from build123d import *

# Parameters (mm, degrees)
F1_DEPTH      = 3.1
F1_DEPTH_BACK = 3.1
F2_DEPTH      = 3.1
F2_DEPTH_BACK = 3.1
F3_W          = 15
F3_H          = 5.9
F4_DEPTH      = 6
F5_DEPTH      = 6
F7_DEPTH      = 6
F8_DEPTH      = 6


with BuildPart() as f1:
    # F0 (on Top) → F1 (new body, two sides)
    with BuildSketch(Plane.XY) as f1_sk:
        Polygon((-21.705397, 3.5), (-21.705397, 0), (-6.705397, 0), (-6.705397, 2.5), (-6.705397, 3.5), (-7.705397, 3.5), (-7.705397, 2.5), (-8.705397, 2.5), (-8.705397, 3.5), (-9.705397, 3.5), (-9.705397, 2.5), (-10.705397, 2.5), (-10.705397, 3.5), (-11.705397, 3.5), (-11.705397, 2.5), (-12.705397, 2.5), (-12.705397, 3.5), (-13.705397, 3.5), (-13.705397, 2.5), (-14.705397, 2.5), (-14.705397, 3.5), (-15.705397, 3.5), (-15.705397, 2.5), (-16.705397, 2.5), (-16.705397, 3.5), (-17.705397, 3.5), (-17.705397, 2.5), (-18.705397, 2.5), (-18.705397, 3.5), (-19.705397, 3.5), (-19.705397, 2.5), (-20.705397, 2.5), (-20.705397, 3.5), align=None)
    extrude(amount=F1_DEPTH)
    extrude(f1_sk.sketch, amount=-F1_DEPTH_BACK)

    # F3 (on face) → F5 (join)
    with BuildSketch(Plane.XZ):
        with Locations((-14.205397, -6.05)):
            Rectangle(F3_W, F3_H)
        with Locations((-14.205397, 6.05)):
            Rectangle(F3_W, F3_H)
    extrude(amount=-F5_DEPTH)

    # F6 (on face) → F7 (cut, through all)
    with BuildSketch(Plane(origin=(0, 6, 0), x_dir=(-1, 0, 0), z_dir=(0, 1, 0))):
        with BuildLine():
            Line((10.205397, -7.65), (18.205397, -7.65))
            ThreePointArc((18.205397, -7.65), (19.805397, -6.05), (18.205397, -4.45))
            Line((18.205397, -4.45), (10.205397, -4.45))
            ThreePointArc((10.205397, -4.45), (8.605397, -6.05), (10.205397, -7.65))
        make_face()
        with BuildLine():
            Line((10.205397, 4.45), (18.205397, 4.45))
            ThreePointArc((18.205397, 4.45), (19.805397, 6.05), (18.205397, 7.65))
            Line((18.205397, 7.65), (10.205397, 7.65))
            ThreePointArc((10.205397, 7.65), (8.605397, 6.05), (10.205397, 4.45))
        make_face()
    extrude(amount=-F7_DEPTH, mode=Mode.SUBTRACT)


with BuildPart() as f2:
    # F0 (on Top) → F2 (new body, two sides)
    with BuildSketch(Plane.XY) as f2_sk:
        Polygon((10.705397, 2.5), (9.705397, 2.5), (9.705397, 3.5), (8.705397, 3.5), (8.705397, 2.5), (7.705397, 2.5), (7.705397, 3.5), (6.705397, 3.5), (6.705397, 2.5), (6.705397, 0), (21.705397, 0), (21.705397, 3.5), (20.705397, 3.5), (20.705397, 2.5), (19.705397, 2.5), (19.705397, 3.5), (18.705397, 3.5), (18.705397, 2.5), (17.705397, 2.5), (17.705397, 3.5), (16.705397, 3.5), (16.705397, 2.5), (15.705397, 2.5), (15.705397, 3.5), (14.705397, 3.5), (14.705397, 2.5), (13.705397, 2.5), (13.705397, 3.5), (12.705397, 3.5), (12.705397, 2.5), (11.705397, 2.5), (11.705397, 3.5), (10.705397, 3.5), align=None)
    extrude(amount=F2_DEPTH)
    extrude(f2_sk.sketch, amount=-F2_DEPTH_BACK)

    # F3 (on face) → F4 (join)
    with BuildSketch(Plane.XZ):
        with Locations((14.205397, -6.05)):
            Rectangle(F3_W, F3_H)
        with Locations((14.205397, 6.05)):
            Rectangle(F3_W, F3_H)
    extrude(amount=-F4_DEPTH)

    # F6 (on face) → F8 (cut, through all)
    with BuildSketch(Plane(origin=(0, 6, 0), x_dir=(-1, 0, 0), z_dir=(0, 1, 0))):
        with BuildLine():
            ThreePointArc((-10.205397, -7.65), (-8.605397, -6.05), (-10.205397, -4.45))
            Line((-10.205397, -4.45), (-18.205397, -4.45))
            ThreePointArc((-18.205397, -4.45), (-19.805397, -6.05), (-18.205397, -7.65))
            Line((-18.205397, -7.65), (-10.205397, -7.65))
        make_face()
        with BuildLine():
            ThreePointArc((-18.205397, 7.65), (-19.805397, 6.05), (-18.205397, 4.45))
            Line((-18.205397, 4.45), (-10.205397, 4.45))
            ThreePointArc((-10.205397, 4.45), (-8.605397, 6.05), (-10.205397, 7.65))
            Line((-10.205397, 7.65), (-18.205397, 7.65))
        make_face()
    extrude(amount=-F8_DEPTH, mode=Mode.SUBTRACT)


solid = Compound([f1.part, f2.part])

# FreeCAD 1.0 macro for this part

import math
import FreeCAD as App
import Part
import Sketcher

V = App.Vector


def add_polygon(sketch, points):
    """Adds a closed chain of lines whose ends are joined by coincident constraints."""
    first, n = sketch.GeometryCount, len(points)
    for a, b in zip(points, points[1:] + points[:1]):
        sketch.addGeometry(Part.LineSegment(App.Vector(*a, 0), App.Vector(*b, 0)), False)
    for i in range(n):
        sketch.addConstraint(Sketcher.Constraint("Coincident", first + i, 2, first + (i + 1) % n, 1))

doc = App.newDocument("Part")
body = doc.addObject("PartDesign::Body", "Body")

# Sketch on XY plane
sketch1 = body.newObject("Sketcher::SketchObject", "Sketch")
sketch1.AttachmentSupport = (doc.getObject("XY_Plane"), [""])
sketch1.MapMode = "FlatFace"
add_polygon(sketch1, [(-21.7, 3.5), (-21.7, 0), (-6.7, 0), (-6.7, 3.5), (-7.7, 3.5), (-7.7, 2.5), (-8.7, 2.5), (-8.7, 3.5), (-9.7, 3.5), (-9.7, 2.5), (-10.7, 2.5), (-10.7, 3.5), (-11.7, 3.5), (-11.7, 2.5), (-12.7, 2.5), (-12.7, 3.5), (-13.7, 3.5), (-13.7, 2.5), (-14.7, 2.5), (-14.7, 3.5), (-15.7, 3.5), (-15.7, 2.5), (-16.7, 2.5), (-16.7, 3.5), (-17.7, 3.5), (-17.7, 2.5), (-18.7, 2.5), (-18.7, 3.5), (-19.7, 3.5), (-19.7, 2.5), (-20.7, 2.5), (-20.7, 3.5)])  # lines 0-31
sketch1.addConstraint([
    Sketcher.Constraint("Vertical", 0),
    Sketcher.Constraint("Horizontal", 1),
    Sketcher.Constraint("Vertical", 2),
    Sketcher.Constraint("Horizontal", 3),
    Sketcher.Constraint("Vertical", 4),
    Sketcher.Constraint("Horizontal", 5),
    Sketcher.Constraint("Vertical", 6),
    Sketcher.Constraint("Horizontal", 7),
    Sketcher.Constraint("Vertical", 8),
    Sketcher.Constraint("Horizontal", 9),
    Sketcher.Constraint("Vertical", 10),
    Sketcher.Constraint("Horizontal", 11),
    Sketcher.Constraint("Vertical", 12),
    Sketcher.Constraint("Horizontal", 13),
    Sketcher.Constraint("Vertical", 14),
    Sketcher.Constraint("Horizontal", 15),
    Sketcher.Constraint("Vertical", 16),
    Sketcher.Constraint("Horizontal", 17),
    Sketcher.Constraint("Vertical", 18),
    Sketcher.Constraint("Horizontal", 19),
    Sketcher.Constraint("Vertical", 20),
    Sketcher.Constraint("Horizontal", 21),
    Sketcher.Constraint("Vertical", 22),
    Sketcher.Constraint("Horizontal", 23),
    Sketcher.Constraint("Vertical", 24),
    Sketcher.Constraint("Horizontal", 25),
    Sketcher.Constraint("Vertical", 26),
    Sketcher.Constraint("Horizontal", 27),
    Sketcher.Constraint("Vertical", 28),
    Sketcher.Constraint("Horizontal", 29),
    Sketcher.Constraint("Vertical", 30),
    Sketcher.Constraint("Horizontal", 31),
    Sketcher.Constraint("PointOnObject", 0, 2, -1),
    Sketcher.Constraint("Horizontal", 3, 2, 6, 2),
    Sketcher.Constraint("Horizontal", 5, 2, 8, 2),
    Sketcher.Constraint("Horizontal", 7, 2, 10, 2),
    Sketcher.Constraint("Horizontal", 9, 2, 12, 2),
    Sketcher.Constraint("Horizontal", 11, 2, 14, 2),
    Sketcher.Constraint("Horizontal", 13, 2, 16, 2),
    Sketcher.Constraint("Horizontal", 15, 2, 18, 2),
    Sketcher.Constraint("Horizontal", 17, 2, 20, 2),
    Sketcher.Constraint("Horizontal", 19, 2, 22, 2),
    Sketcher.Constraint("Horizontal", 21, 2, 24, 2),
    Sketcher.Constraint("Horizontal", 23, 2, 26, 2),
    Sketcher.Constraint("Horizontal", 25, 2, 28, 2),
    Sketcher.Constraint("Horizontal", 27, 2, 30, 2),
    Sketcher.Constraint("Equal", 3, 5),
    Sketcher.Constraint("Equal", 5, 7),
    Sketcher.Constraint("Equal", 7, 9),
    Sketcher.Constraint("Equal", 9, 11),
    Sketcher.Constraint("Equal", 11, 13),
    Sketcher.Constraint("Equal", 13, 15),
    Sketcher.Constraint("Equal", 15, 17),
    Sketcher.Constraint("Equal", 17, 19),
    Sketcher.Constraint("Equal", 19, 21),
    Sketcher.Constraint("Equal", 21, 23),
    Sketcher.Constraint("Equal", 23, 25),
    Sketcher.Constraint("Equal", 25, 27),
    Sketcher.Constraint("Equal", 27, 29),
    Sketcher.Constraint("Equal", 29, 31),
    Sketcher.Constraint("Equal", 31, 4),
    Sketcher.Constraint("DistanceX", 1, 1, 1, 2, 15.0),
    Sketcher.Constraint("DistanceY", 0, 2, 0, 1, 3.5),
    Sketcher.Constraint("DistanceX", 0, 2, -1, 1, 21.705397),
])
pad1 = body.newObject("PartDesign::Pad", "Pad")
pad1.Profile = sketch1
pad1.Type = "TwoLengths"
pad1.Length = 3.1
pad1.Length2 = 3.1

# Sketch on XZ plane
sketch2 = body.newObject("Sketcher::SketchObject", "Sketch001")
sketch2.AttachmentSupport = (doc.getObject("XZ_Plane"), [""])
sketch2.MapMode = "FlatFace"
add_polygon(sketch2, [(-22, -3), (-22, -9), (-7, -9), (-7, -3)])  # lines 0-3
add_polygon(sketch2, [(-22, 9), (-22, 3), (-7, 3), (-7, 9)])  # lines 4-7
sketch2.addConstraint([
    Sketcher.Constraint("Vertical", 0),
    Sketcher.Constraint("Horizontal", 1),
    Sketcher.Constraint("Vertical", 2),
    Sketcher.Constraint("Horizontal", 3),
    Sketcher.Constraint("Vertical", 4),
    Sketcher.Constraint("Horizontal", 5),
    Sketcher.Constraint("Vertical", 6),
    Sketcher.Constraint("Horizontal", 7),
    Sketcher.Constraint("Symmetric", 3, 2, 4, 2, -1),
    Sketcher.Constraint("Symmetric", 1, 2, 6, 2, -1),
    Sketcher.Constraint("DistanceX", 1, 1, 1, 2, 15.0),
    Sketcher.Constraint("DistanceY", 0, 2, 0, 1, 5.9),
    Sketcher.Constraint("DistanceY", 0, 2, -1, 1, 9.0),
    Sketcher.Constraint("DistanceX", 0, 2, -1, 1, 21.705397),
])
pad2 = body.newObject("PartDesign::Pad", "Pad001")
pad2.Profile = sketch2
pad2.Length = 6
pad2.Reversed = True

# Sketch on XZ plane
sketch3 = body.newObject("Sketcher::SketchObject", "Sketch002")
sketch3.AttachmentSupport = (doc.getObject("XZ_Plane"), [""])
sketch3.MapMode = "FlatFace"
sketch3.AttachmentOffset = App.Placement(V(0, 0, -6), App.Rotation())
sketch3.addGeometry([
    Part.LineSegment(V(-10.2, -7.7, 0), V(-18.2, -7.7, 0)),  # 0
    Part.ArcOfCircle(Part.Circle(V(-18.2, -6, 0), V(0, 0, 1), 1.6), math.radians(90), math.radians(270)),  # 1
    Part.LineSegment(V(-18.2, -4.5, 0), V(-10.2, -4.5, 0)),  # 2
    Part.ArcOfCircle(Part.Circle(V(-10.2, -6, 0), V(0, 0, 1), 1.6), math.radians(-90), math.radians(90)),  # 3
    Part.LineSegment(V(-10.2, 4.5, 0), V(-18.2, 4.5, 0)),  # 4
    Part.ArcOfCircle(Part.Circle(V(-18.2, 6, 0), V(0, 0, 1), 1.6), math.radians(90), math.radians(270)),  # 5
    Part.LineSegment(V(-18.2, 7.7, 0), V(-10.2, 7.7, 0)),  # 6
    Part.ArcOfCircle(Part.Circle(V(-10.2, 6, 0), V(0, 0, 1), 1.6), math.radians(-90), math.radians(90)),  # 7
], False)
sketch3.addConstraint([
    Sketcher.Constraint("Tangent", 0, 2, 1, 2),
    Sketcher.Constraint("Tangent", 1, 1, 2, 1),
    Sketcher.Constraint("Tangent", 2, 2, 3, 2),
    Sketcher.Constraint("Tangent", 3, 1, 0, 1),
    Sketcher.Constraint("Tangent", 4, 2, 5, 2),
    Sketcher.Constraint("Tangent", 5, 1, 6, 1),
    Sketcher.Constraint("Tangent", 6, 2, 7, 2),
    Sketcher.Constraint("Tangent", 7, 1, 4, 1),
    Sketcher.Constraint("Horizontal", 0),
    Sketcher.Constraint("Horizontal", 2),
    Sketcher.Constraint("Horizontal", 4),
    Sketcher.Constraint("Horizontal", 6),
    Sketcher.Constraint("Equal", 3, 5),
    Sketcher.Constraint("Symmetric", 1, 3, 5, 3, -1),
    Sketcher.Constraint("Vertical", 3, 3, 7, 3),
    Sketcher.Constraint("Radius", 1, 1.6),
    Sketcher.Constraint("DistanceX", 0, 2, 0, 1, 8.0),
    Sketcher.Constraint("DistanceY", 1, 3, 5, 3, 12.1),
    Sketcher.Constraint("DistanceX", 1, 3, -1, 1, 18.205397),
])
pocket1 = body.newObject("PartDesign::Pocket", "Pocket")
pocket1.Profile = sketch3
pocket1.Type = "ThroughAll"
pocket1.Reversed = True
body2 = doc.addObject("PartDesign::Body", "Body001")

# Sketch on XY plane
sketch4 = body2.newObject("Sketcher::SketchObject", "Sketch003")
sketch4.AttachmentSupport = (doc.getObject("XY_Plane001"), [""])
sketch4.MapMode = "FlatFace"
add_polygon(sketch4, [(10.7, 2.5), (9.7, 2.5), (9.7, 3.5), (8.7, 3.5), (8.7, 2.5), (7.7, 2.5), (7.7, 3.5), (6.7, 3.5), (6.7, 0), (21.7, 0), (21.7, 3.5), (20.7, 3.5), (20.7, 2.5), (19.7, 2.5), (19.7, 3.5), (18.7, 3.5), (18.7, 2.5), (17.7, 2.5), (17.7, 3.5), (16.7, 3.5), (16.7, 2.5), (15.7, 2.5), (15.7, 3.5), (14.7, 3.5), (14.7, 2.5), (13.7, 2.5), (13.7, 3.5), (12.7, 3.5), (12.7, 2.5), (11.7, 2.5), (11.7, 3.5), (10.7, 3.5)])  # lines 0-31
sketch4.addConstraint([
    Sketcher.Constraint("Horizontal", 0),
    Sketcher.Constraint("Vertical", 1),
    Sketcher.Constraint("Horizontal", 2),
    Sketcher.Constraint("Vertical", 3),
    Sketcher.Constraint("Horizontal", 4),
    Sketcher.Constraint("Vertical", 5),
    Sketcher.Constraint("Horizontal", 6),
    Sketcher.Constraint("Vertical", 7),
    Sketcher.Constraint("Horizontal", 8),
    Sketcher.Constraint("Vertical", 9),
    Sketcher.Constraint("Horizontal", 10),
    Sketcher.Constraint("Vertical", 11),
    Sketcher.Constraint("Horizontal", 12),
    Sketcher.Constraint("Vertical", 13),
    Sketcher.Constraint("Horizontal", 14),
    Sketcher.Constraint("Vertical", 15),
    Sketcher.Constraint("Horizontal", 16),
    Sketcher.Constraint("Vertical", 17),
    Sketcher.Constraint("Horizontal", 18),
    Sketcher.Constraint("Vertical", 19),
    Sketcher.Constraint("Horizontal", 20),
    Sketcher.Constraint("Vertical", 21),
    Sketcher.Constraint("Horizontal", 22),
    Sketcher.Constraint("Vertical", 23),
    Sketcher.Constraint("Horizontal", 24),
    Sketcher.Constraint("Vertical", 25),
    Sketcher.Constraint("Horizontal", 26),
    Sketcher.Constraint("Vertical", 27),
    Sketcher.Constraint("Horizontal", 28),
    Sketcher.Constraint("Vertical", 29),
    Sketcher.Constraint("Horizontal", 30),
    Sketcher.Constraint("Vertical", 31),
    Sketcher.Constraint("PointOnObject", 7, 2, -1),
    Sketcher.Constraint("Horizontal", 0, 2, 3, 2),
    Sketcher.Constraint("Horizontal", 2, 2, 5, 2),
    Sketcher.Constraint("Horizontal", 6, 2, 9, 2),
    Sketcher.Constraint("Horizontal", 4, 2, 11, 2),
    Sketcher.Constraint("Horizontal", 10, 2, 13, 2),
    Sketcher.Constraint("Horizontal", 12, 2, 15, 2),
    Sketcher.Constraint("Horizontal", 14, 2, 17, 2),
    Sketcher.Constraint("Horizontal", 16, 2, 19, 2),
    Sketcher.Constraint("Horizontal", 18, 2, 21, 2),
    Sketcher.Constraint("Horizontal", 20, 2, 23, 2),
    Sketcher.Constraint("Horizontal", 22, 2, 25, 2),
    Sketcher.Constraint("Horizontal", 24, 2, 27, 2),
    Sketcher.Constraint("Horizontal", 26, 2, 29, 2),
    Sketcher.Constraint("Equal", 0, 2),
    Sketcher.Constraint("Equal", 2, 4),
    Sketcher.Constraint("Equal", 4, 6),
    Sketcher.Constraint("Equal", 6, 10),
    Sketcher.Constraint("Equal", 10, 12),
    Sketcher.Constraint("Equal", 12, 14),
    Sketcher.Constraint("Equal", 14, 16),
    Sketcher.Constraint("Equal", 16, 18),
    Sketcher.Constraint("Equal", 18, 20),
    Sketcher.Constraint("Equal", 20, 22),
    Sketcher.Constraint("Equal", 22, 24),
    Sketcher.Constraint("Equal", 24, 26),
    Sketcher.Constraint("Equal", 26, 28),
    Sketcher.Constraint("Equal", 28, 30),
    Sketcher.Constraint("Equal", 30, 1),
    Sketcher.Constraint("DistanceX", 0, 2, 0, 1, 1.0),
    Sketcher.Constraint("DistanceY", 7, 2, 7, 1, 3.5),
    Sketcher.Constraint("DistanceX", -1, 1, 0, 2, 9.705397),
])
pad3 = body2.newObject("PartDesign::Pad", "Pad002")
pad3.Profile = sketch4
pad3.Type = "TwoLengths"
pad3.Length = 3.1
pad3.Length2 = 3.1

# Sketch on XZ plane
sketch5 = body2.newObject("Sketcher::SketchObject", "Sketch004")
sketch5.AttachmentSupport = (doc.getObject("XZ_Plane001"), [""])
sketch5.MapMode = "FlatFace"
add_polygon(sketch5, [(7, -3), (7, -9), (22, -9), (22, -3)])  # lines 0-3
add_polygon(sketch5, [(7, 9), (7, 3), (22, 3), (22, 9)])  # lines 4-7
sketch5.addConstraint([
    Sketcher.Constraint("Vertical", 0),
    Sketcher.Constraint("Horizontal", 1),
    Sketcher.Constraint("Vertical", 2),
    Sketcher.Constraint("Horizontal", 3),
    Sketcher.Constraint("Vertical", 4),
    Sketcher.Constraint("Horizontal", 5),
    Sketcher.Constraint("Vertical", 6),
    Sketcher.Constraint("Horizontal", 7),
    Sketcher.Constraint("Symmetric", 3, 2, 4, 2, -1),
    Sketcher.Constraint("Symmetric", 1, 2, 6, 2, -1),
    Sketcher.Constraint("DistanceX", 1, 1, 1, 2, 15.0),
    Sketcher.Constraint("DistanceY", 0, 2, 0, 1, 5.9),
    Sketcher.Constraint("DistanceY", 0, 2, -1, 1, 9.0),
    Sketcher.Constraint("DistanceX", -1, 1, 0, 2, 6.705397),
])
pad4 = body2.newObject("PartDesign::Pad", "Pad003")
pad4.Profile = sketch5
pad4.Length = 6
pad4.Reversed = True

# Sketch on XZ plane
sketch6 = body2.newObject("Sketcher::SketchObject", "Sketch005")
sketch6.AttachmentSupport = (doc.getObject("XZ_Plane001"), [""])
sketch6.MapMode = "FlatFace"
sketch6.AttachmentOffset = App.Placement(V(0, 0, -6), App.Rotation())
sketch6.addGeometry([
    Part.ArcOfCircle(Part.Circle(V(10.2, -6, 0), V(0, 0, 1), 1.6), math.radians(90), math.radians(270)),  # 0
    Part.LineSegment(V(10.2, -4.5, 0), V(18.2, -4.5, 0)),  # 1
    Part.ArcOfCircle(Part.Circle(V(18.2, -6, 0), V(0, 0, 1), 1.6), math.radians(-90), math.radians(90)),  # 2
    Part.LineSegment(V(18.2, -7.7, 0), V(10.2, -7.7, 0)),  # 3
    Part.ArcOfCircle(Part.Circle(V(18.2, 6, 0), V(0, 0, 1), 1.6), math.radians(-90), math.radians(90)),  # 4
    Part.LineSegment(V(18.2, 4.5, 0), V(10.2, 4.5, 0)),  # 5
    Part.ArcOfCircle(Part.Circle(V(10.2, 6, 0), V(0, 0, 1), 1.6), math.radians(90), math.radians(270)),  # 6
    Part.LineSegment(V(10.2, 7.7, 0), V(18.2, 7.7, 0)),  # 7
], False)
sketch6.addConstraint([
    Sketcher.Constraint("Tangent", 0, 1, 1, 1),
    Sketcher.Constraint("Tangent", 1, 2, 2, 2),
    Sketcher.Constraint("Tangent", 2, 1, 3, 1),
    Sketcher.Constraint("Tangent", 3, 2, 0, 2),
    Sketcher.Constraint("Tangent", 4, 1, 5, 1),
    Sketcher.Constraint("Tangent", 5, 2, 6, 2),
    Sketcher.Constraint("Tangent", 6, 1, 7, 1),
    Sketcher.Constraint("Tangent", 7, 2, 4, 2),
    Sketcher.Constraint("Horizontal", 1),
    Sketcher.Constraint("Horizontal", 3),
    Sketcher.Constraint("Horizontal", 5),
    Sketcher.Constraint("Horizontal", 7),
    Sketcher.Constraint("Equal", 2, 4),
    Sketcher.Constraint("Symmetric", 2, 3, 4, 3, -1),
    Sketcher.Constraint("Vertical", 0, 3, 6, 3),
    Sketcher.Constraint("Radius", 0, 1.6),
    Sketcher.Constraint("DistanceX", 1, 1, 1, 2, 8.0),
    Sketcher.Constraint("DistanceY", 2, 3, 4, 3, 12.1),
    Sketcher.Constraint("DistanceX", -1, 1, 0, 3, 10.205397),
])
pocket2 = body2.newObject("PartDesign::Pocket", "Pocket001")
pocket2.Profile = sketch6
pocket2.Type = "ThroughAll"
pocket2.Reversed = True

doc.recompute()
